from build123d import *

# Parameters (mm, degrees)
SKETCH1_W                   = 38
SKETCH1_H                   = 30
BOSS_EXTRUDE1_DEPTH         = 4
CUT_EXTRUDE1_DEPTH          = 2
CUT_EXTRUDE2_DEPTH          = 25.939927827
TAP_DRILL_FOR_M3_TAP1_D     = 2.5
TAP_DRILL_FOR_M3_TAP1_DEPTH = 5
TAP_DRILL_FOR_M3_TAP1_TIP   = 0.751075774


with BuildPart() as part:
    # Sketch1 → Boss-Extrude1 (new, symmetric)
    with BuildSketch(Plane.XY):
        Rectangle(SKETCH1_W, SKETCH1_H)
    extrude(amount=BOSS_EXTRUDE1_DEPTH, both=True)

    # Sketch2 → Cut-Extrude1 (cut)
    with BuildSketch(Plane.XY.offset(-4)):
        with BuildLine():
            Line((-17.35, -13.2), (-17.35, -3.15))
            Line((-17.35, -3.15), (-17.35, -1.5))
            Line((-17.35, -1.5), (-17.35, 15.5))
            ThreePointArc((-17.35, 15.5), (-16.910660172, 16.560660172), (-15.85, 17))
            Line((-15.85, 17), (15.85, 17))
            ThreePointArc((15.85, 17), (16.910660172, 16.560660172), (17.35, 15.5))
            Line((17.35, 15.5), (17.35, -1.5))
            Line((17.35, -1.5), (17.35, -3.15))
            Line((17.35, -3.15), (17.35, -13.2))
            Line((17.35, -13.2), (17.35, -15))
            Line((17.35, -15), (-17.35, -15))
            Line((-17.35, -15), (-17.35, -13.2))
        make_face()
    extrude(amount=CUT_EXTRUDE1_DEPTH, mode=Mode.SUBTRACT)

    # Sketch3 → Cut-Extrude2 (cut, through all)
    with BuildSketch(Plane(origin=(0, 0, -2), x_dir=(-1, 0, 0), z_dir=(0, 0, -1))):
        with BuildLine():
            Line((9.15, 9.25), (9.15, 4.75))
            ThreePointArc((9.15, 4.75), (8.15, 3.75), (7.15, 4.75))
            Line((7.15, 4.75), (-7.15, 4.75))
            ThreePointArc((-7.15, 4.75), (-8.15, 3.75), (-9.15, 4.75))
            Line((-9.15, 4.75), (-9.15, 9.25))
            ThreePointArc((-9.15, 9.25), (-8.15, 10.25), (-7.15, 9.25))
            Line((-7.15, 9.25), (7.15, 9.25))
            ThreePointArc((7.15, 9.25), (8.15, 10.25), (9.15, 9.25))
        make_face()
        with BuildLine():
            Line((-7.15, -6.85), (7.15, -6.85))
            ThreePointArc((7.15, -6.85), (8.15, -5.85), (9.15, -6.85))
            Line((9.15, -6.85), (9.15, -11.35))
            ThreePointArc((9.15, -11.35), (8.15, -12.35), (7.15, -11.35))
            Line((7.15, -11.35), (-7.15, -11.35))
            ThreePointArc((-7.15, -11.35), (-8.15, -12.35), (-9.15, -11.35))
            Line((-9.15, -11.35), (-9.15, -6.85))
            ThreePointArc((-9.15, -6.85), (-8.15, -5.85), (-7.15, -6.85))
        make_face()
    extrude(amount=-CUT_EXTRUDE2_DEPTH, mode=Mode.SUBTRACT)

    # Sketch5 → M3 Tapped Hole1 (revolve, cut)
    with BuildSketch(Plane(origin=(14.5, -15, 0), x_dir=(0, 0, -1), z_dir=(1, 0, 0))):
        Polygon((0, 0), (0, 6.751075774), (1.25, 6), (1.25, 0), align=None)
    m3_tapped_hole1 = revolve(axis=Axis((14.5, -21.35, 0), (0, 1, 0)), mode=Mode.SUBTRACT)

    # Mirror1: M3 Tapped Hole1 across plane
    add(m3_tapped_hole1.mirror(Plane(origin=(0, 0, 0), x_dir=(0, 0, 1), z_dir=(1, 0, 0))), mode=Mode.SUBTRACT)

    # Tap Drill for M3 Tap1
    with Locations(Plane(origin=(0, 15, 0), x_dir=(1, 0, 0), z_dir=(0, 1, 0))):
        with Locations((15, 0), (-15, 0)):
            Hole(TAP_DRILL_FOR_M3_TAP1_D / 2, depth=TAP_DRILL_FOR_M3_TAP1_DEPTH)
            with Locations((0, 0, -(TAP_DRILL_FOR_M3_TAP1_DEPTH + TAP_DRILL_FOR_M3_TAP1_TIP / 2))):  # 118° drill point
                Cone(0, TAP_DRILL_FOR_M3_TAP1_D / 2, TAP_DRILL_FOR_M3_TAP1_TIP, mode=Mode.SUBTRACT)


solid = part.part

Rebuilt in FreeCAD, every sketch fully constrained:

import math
import FreeCAD as App
import Part
import Sketcher
Q = App.Units.Quantity


def add_polygon(sketch, points):
    """Adds a closed chain of lines whose ends are joined by coincident constraints."""
    first, n = sketch.GeometryCount, len(points)
    for a, b in zip(points, points[1:] + points[:1]):
        sketch.addGeometry(Part.LineSegment(App.Vector(*a, 0), App.Vector(*b, 0)), False)
    for i in range(n):
        sketch.addConstraint(Sketcher.Constraint("Coincident", first + i, 2, first + (i + 1) % n, 1))

doc = App.newDocument("Part")
body = doc.addObject("PartDesign::Body", "Body")

sketch1 = body.newObject("Sketcher::SketchObject", "Sketch")
sketch1.AttachmentSupport = (doc.getObject("XY_Plane"), [""])
sketch1.MapMode = "FlatFace"
add_polygon(sketch1, [(-19, 15), (-19, -15), (19, -15), (19, 15)])
sketch1.addConstraint(Sketcher.Constraint("Vertical", 0))
sketch1.addConstraint(Sketcher.Constraint("Horizontal", 1))
sketch1.addConstraint(Sketcher.Constraint("Vertical", 2))
sketch1.addConstraint(Sketcher.Constraint("Horizontal", 3))
sketch1.addConstraint(Sketcher.Constraint("Symmetric", 0, 2, 2, 2, -1, 1))
sketch1.addConstraint(Sketcher.Constraint("DistanceX", 1, 1, 1, 2, 38.0))
sketch1.addConstraint(Sketcher.Constraint("DistanceY", 0, 2, 0, 1, 30.0))
pad1 = body.newObject("PartDesign::Pad", "Pad")
pad1.Profile = sketch1
pad1.Length = 8
pad1.Midplane = True

sketch2 = body.newObject("Sketcher::SketchObject", "Sketch001")
sketch2.AttachmentSupport = (doc.getObject("XY_Plane"), [""])
sketch2.MapMode = "FlatFace"
sketch2.AttachmentOffset = App.Placement(App.Vector(0, 0, -4), App.Rotation())
sketch2.addGeometry(Part.ArcOfCircle(Part.Circle(App.Vector(-15.9, 15.5, 0), App.Vector(0, 0, 1), 1.5), math.radians(90), math.radians(180)), False)
sketch2.addGeometry(Part.LineSegment(App.Vector(-17.4, 15.5, 0), App.Vector(-17.4, -15, 0)), False)
sketch2.addGeometry(Part.LineSegment(App.Vector(-17.4, -15, 0), App.Vector(17.4, -15, 0)), False)
sketch2.addGeometry(Part.LineSegment(App.Vector(17.4, -15, 0), App.Vector(17.4, 15.5, 0)), False)
sketch2.addGeometry(Part.ArcOfCircle(Part.Circle(App.Vector(15.9, 15.5, 0), App.Vector(0, 0, 1), 1.5), math.radians(0), math.radians(90)), False)
sketch2.addGeometry(Part.LineSegment(App.Vector(15.8, 17, 0), App.Vector(-15.8, 17, 0)), False)
sketch2.addConstraint(Sketcher.Constraint("Tangent", 0, 2, 1, 1))
sketch2.addConstraint(Sketcher.Constraint("Coincident", 1, 2, 2, 1))
sketch2.addConstraint(Sketcher.Constraint("Coincident", 2, 2, 3, 1))
sketch2.addConstraint(Sketcher.Constraint("Tangent", 3, 2, 4, 1))
sketch2.addConstraint(Sketcher.Constraint("Tangent", 4, 2, 5, 1))
sketch2.addConstraint(Sketcher.Constraint("Tangent", 5, 2, 0, 1))
sketch2.addConstraint(Sketcher.Constraint("Vertical", 1))
sketch2.addConstraint(Sketcher.Constraint("Horizontal", 2))
sketch2.addConstraint(Sketcher.Constraint("Vertical", 3))
sketch2.addConstraint(Sketcher.Constraint("Horizontal", 5))
sketch2.addConstraint(Sketcher.Constraint("Equal", 0, 4))
sketch2.addConstraint(Sketcher.Constraint("Radius", 0, 1.5))
sketch2.addConstraint(Sketcher.Constraint("DistanceX", 2, 1, 2, 2, 34.7))
sketch2.addConstraint(Sketcher.Constraint("DistanceY", 1, 2, 1, 1, 30.5))
sketch2.addConstraint(Sketcher.Constraint("DistanceY", 1, 2, -1, 1, 15.0))
sketch2.addConstraint(Sketcher.Constraint("DistanceX", 0, 3, -1, 1, 15.85))
pocket1 = body.newObject("PartDesign::Pocket", "Pocket")
pocket1.Profile = sketch2
pocket1.Length = 2
pocket1.Reversed = True

sketch3 = body.newObject("Sketcher::SketchObject", "Sketch002")
sketch3.AttachmentSupport = (doc.getObject("XY_Plane"), [""])
sketch3.MapMode = "FlatFace"
sketch3.AttachmentOffset = App.Placement(App.Vector(0, 0, -2), App.Rotation())
sketch3.addGeometry(Part.LineSegment(App.Vector(-9.2, 4.8, 0), App.Vector(-9.2, 9.2, 0)), False)
sketch3.addGeometry(Part.ArcOfCircle(Part.Circle(App.Vector(-8.2, 9.2, 0), App.Vector(0, 0, 1), 1), math.radians(0), math.radians(180)), False)
sketch3.addGeometry(Part.LineSegment(App.Vector(-7.2, 9.2, 0), App.Vector(7.2, 9.2, 0)), False)
sketch3.addGeometry(Part.ArcOfCircle(Part.Circle(App.Vector(8.2, 9.2, 0), App.Vector(0, 0, 1), 1), math.radians(0), math.radians(180)), False)
sketch3.addGeometry(Part.LineSegment(App.Vector(9.2, 9.2, 0), App.Vector(9.2, 4.8, 0)), False)
sketch3.addGeometry(Part.ArcOfCircle(Part.Circle(App.Vector(8.2, 4.8, 0), App.Vector(0, 0, 1), 1), math.radians(180), math.radians(360)), False)
sketch3.addGeometry(Part.LineSegment(App.Vector(7.2, 4.8, 0), App.Vector(-7.2, 4.8, 0)), False)
sketch3.addGeometry(Part.ArcOfCircle(Part.Circle(App.Vector(-8.2, 4.8, 0), App.Vector(0, 0, 1), 1), math.radians(180), math.radians(360)), False)
sketch3.addGeometry(Part.LineSegment(App.Vector(-7.2, -6.8, 0), App.Vector(7.2, -6.8, 0)), False)
sketch3.addGeometry(Part.ArcOfCircle(Part.Circle(App.Vector(8.2, -6.8, 0), App.Vector(0, 0, 1), 1), math.radians(0), math.radians(180)), False)
sketch3.addGeometry(Part.LineSegment(App.Vector(9.2, -6.8, 0), App.Vector(9.2, -11.3, 0)), False)
sketch3.addGeometry(Part.ArcOfCircle(Part.Circle(App.Vector(8.2, -11.3, 0), App.Vector(0, 0, 1), 1), math.radians(180), math.radians(360)), False)
sketch3.addGeometry(Part.LineSegment(App.Vector(7.2, -11.3, 0), App.Vector(-7.2, -11.3, 0)), False)
sketch3.addGeometry(Part.ArcOfCircle(Part.Circle(App.Vector(-8.2, -11.3, 0), App.Vector(0, 0, 1), 1), math.radians(180), math.radians(360)), False)
sketch3.addGeometry(Part.LineSegment(App.Vector(-9.2, -11.3, 0), App.Vector(-9.2, -6.8, 0)), False)
sketch3.addGeometry(Part.ArcOfCircle(Part.Circle(App.Vector(-8.2, -6.8, 0), App.Vector(0, 0, 1), 1), math.radians(0), math.radians(180)), False)
sketch3.addConstraint(Sketcher.Constraint("Tangent", 0, 2, 1, 2))
sketch3.addConstraint(Sketcher.Constraint("Coincident", 1, 1, 2, 1))
sketch3.addConstraint(Sketcher.Constraint("Coincident", 2, 2, 3, 2))
sketch3.addConstraint(Sketcher.Constraint("Tangent", 3, 1, 4, 1))
sketch3.addConstraint(Sketcher.Constraint("Tangent", 4, 2, 5, 2))
sketch3.addConstraint(Sketcher.Constraint("Coincident", 5, 1, 6, 1))
sketch3.addConstraint(Sketcher.Constraint("Coincident", 6, 2, 7, 2))
sketch3.addConstraint(Sketcher.Constraint("Tangent", 7, 1, 0, 1))
sketch3.addConstraint(Sketcher.Constraint("Coincident", 8, 2, 9, 2))
sketch3.addConstraint(Sketcher.Constraint("Tangent", 9, 1, 10, 1))
sketch3.addConstraint(Sketcher.Constraint("Tangent", 10, 2, 11, 2))
sketch3.addConstraint(Sketcher.Constraint("Coincident", 11, 1, 12, 1))
sketch3.addConstraint(Sketcher.Constraint("Coincident", 12, 2, 13, 2))
sketch3.addConstraint(Sketcher.Constraint("Tangent", 13, 1, 14, 1))
sketch3.addConstraint(Sketcher.Constraint("Tangent", 14, 2, 15, 2))
sketch3.addConstraint(Sketcher.Constraint("Coincident", 15, 1, 8, 1))
sketch3.addConstraint(Sketcher.Constraint("Vertical", 0))
sketch3.addConstraint(Sketcher.Constraint("Horizontal", 2))
sketch3.addConstraint(Sketcher.Constraint("Vertical", 4))
sketch3.addConstraint(Sketcher.Constraint("Horizontal", 6))
sketch3.addConstraint(Sketcher.Constraint("Horizontal", 8))
sketch3.addConstraint(Sketcher.Constraint("Vertical", 10))
sketch3.addConstraint(Sketcher.Constraint("Horizontal", 12))
sketch3.addConstraint(Sketcher.Constraint("Vertical", 14))
sketch3.addConstraint(Sketcher.Constraint("Equal", 1, 3))
sketch3.addConstraint(Sketcher.Constraint("Equal", 3, 5))
sketch3.addConstraint(Sketcher.Constraint("Equal", 5, 7))
sketch3.addConstraint(Sketcher.Constraint("Equal", 7, 9))
sketch3.addConstraint(Sketcher.Constraint("Equal", 9, 11))
sketch3.addConstraint(Sketcher.Constraint("Equal", 11, 13))
sketch3.addConstraint(Sketcher.Constraint("Equal", 13, 15))
sketch3.addConstraint(Sketcher.Constraint("Symmetric", 1, 3, 3, 3, -2))
sketch3.addConstraint(Sketcher.Constraint("Symmetric", 11, 3, 13, 3, -2))
sketch3.addConstraint(Sketcher.Constraint("Horizontal", 5, 3, 7, 3))
sketch3.addConstraint(Sketcher.Constraint("Horizontal", 9, 3, 15, 3))
sketch3.addConstraint(Sketcher.Constraint("Horizontal", 0, 2, 1, 1))
sketch3.addConstraint(Sketcher.Constraint("Horizontal", 4, 2, 5, 1))
sketch3.addConstraint(Sketcher.Constraint("Horizontal", 15, 3, 8, 2))
sketch3.addConstraint(Sketcher.Constraint("Horizontal", 10, 2, 11, 1))
sketch3.addConstraint(Sketcher.Constraint("Vertical", 5, 3, 9, 3))
sketch3.addConstraint(Sketcher.Constraint("Equal", 4, 10))
sketch3.addConstraint(Sketcher.Constraint("Radius", 1, 1.0))
sketch3.addConstraint(Sketcher.Constraint("DistanceX", 2, 1, 2, 2, 14.3))
sketch3.addConstraint(Sketcher.Constraint("DistanceY", 0, 1, 0, 2, 4.5))
sketch3.addConstraint(Sketcher.Constraint("DistanceY", 9, 3, 5, 3, 11.6))
sketch3.addConstraint(Sketcher.Constraint("DistanceY", -1, 1, 1, 3, 9.25))
pocket2 = body.newObject("PartDesign::Pocket", "Pocket001")
pocket2.Profile = sketch3
pocket2.Type = "ThroughAll"
pocket2.Reversed = True

sketch4 = body.newObject("Sketcher::SketchObject", "Sketch003")
sketch4.AttachmentSupport = (doc.getObject("YZ_Plane"), [""])
sketch4.MapMode = "FlatFace"
sketch4.AttachmentOffset = App.Placement(App.Vector(0, 0, 14.5), App.Rotation())
add_polygon(sketch4, [(-8.2, 0), (-15, 0), (-15, -1.2), (-9, -1.2)])
sketch4.addConstraint(Sketcher.Constraint("Horizontal", 0))
sketch4.addConstraint(Sketcher.Constraint("Vertical", 1))
sketch4.addConstraint(Sketcher.Constraint("Horizontal", 2))
sketch4.addConstraint(Sketcher.Constraint("PointOnObject", 0, 2, -1))
sketch4.addConstraint(Sketcher.Constraint("DistanceX", 2, 1, 2, 2, 6.0))
sketch4.addConstraint(Sketcher.Constraint("Angle", 3, Q("59 deg")))
sketch4.addConstraint(Sketcher.Constraint("DistanceX", 0, 2, -1, 1, 15.0))
sketch4.addConstraint(Sketcher.Constraint("DistanceY", 1, 2, 1, 1, 1.25))
groove = body.newObject("PartDesign::Groove", "Groove")
groove.Profile = sketch4
groove.ReferenceAxis = (sketch4, ["H_Axis"])
groove.Angle = 360
doc.recompute()

mirrored = body.newObject("PartDesign::Mirrored", "Mirrored")
mirrored.Originals = [groove]
mirrored.MirrorPlane = (doc.getObject("YZ_Plane"), [""])
body.Tip = mirrored

sketch5 = body.newObject("Sketcher::SketchObject", "Sketch004")
sketch5.AttachmentSupport = (doc.getObject("XZ_Plane"), [""])
sketch5.MapMode = "FlatFace"
sketch5.AttachmentOffset = App.Placement(App.Vector(0, 0, -15), App.Rotation())
sketch5.addGeometry(Part.Circle(App.Vector(15, 0, 0), App.Vector(0, 0, 1), 1.2), False)
sketch5.addGeometry(Part.Circle(App.Vector(-15, 0, 0), App.Vector(0, 0, 1), 1.2), False)
sketch5.addConstraint(Sketcher.Constraint("Equal", 0, 1))
sketch5.addConstraint(Sketcher.Constraint("Symmetric", 0, 3, 1, 3, -1, 1))
sketch5.addConstraint(Sketcher.Constraint("PointOnObject", 0, 3, -1))
sketch5.addConstraint(Sketcher.Constraint("Diameter", 0, 2.5))
sketch5.addConstraint(Sketcher.Constraint("DistanceX", -1, 1, 0, 3, 15.0))
doc.recompute()
hole = body.newObject("PartDesign::Hole", "Hole")
hole.Profile = sketch5
hole.ThreadType = "None"
hole.Diameter = 2.5
hole.DepthType = "Dimension"
hole.Depth = 5
hole.DrillPoint = "Angled"
hole.DrillPointAngle = 118
hole.Reversed = True

doc.recompute()
